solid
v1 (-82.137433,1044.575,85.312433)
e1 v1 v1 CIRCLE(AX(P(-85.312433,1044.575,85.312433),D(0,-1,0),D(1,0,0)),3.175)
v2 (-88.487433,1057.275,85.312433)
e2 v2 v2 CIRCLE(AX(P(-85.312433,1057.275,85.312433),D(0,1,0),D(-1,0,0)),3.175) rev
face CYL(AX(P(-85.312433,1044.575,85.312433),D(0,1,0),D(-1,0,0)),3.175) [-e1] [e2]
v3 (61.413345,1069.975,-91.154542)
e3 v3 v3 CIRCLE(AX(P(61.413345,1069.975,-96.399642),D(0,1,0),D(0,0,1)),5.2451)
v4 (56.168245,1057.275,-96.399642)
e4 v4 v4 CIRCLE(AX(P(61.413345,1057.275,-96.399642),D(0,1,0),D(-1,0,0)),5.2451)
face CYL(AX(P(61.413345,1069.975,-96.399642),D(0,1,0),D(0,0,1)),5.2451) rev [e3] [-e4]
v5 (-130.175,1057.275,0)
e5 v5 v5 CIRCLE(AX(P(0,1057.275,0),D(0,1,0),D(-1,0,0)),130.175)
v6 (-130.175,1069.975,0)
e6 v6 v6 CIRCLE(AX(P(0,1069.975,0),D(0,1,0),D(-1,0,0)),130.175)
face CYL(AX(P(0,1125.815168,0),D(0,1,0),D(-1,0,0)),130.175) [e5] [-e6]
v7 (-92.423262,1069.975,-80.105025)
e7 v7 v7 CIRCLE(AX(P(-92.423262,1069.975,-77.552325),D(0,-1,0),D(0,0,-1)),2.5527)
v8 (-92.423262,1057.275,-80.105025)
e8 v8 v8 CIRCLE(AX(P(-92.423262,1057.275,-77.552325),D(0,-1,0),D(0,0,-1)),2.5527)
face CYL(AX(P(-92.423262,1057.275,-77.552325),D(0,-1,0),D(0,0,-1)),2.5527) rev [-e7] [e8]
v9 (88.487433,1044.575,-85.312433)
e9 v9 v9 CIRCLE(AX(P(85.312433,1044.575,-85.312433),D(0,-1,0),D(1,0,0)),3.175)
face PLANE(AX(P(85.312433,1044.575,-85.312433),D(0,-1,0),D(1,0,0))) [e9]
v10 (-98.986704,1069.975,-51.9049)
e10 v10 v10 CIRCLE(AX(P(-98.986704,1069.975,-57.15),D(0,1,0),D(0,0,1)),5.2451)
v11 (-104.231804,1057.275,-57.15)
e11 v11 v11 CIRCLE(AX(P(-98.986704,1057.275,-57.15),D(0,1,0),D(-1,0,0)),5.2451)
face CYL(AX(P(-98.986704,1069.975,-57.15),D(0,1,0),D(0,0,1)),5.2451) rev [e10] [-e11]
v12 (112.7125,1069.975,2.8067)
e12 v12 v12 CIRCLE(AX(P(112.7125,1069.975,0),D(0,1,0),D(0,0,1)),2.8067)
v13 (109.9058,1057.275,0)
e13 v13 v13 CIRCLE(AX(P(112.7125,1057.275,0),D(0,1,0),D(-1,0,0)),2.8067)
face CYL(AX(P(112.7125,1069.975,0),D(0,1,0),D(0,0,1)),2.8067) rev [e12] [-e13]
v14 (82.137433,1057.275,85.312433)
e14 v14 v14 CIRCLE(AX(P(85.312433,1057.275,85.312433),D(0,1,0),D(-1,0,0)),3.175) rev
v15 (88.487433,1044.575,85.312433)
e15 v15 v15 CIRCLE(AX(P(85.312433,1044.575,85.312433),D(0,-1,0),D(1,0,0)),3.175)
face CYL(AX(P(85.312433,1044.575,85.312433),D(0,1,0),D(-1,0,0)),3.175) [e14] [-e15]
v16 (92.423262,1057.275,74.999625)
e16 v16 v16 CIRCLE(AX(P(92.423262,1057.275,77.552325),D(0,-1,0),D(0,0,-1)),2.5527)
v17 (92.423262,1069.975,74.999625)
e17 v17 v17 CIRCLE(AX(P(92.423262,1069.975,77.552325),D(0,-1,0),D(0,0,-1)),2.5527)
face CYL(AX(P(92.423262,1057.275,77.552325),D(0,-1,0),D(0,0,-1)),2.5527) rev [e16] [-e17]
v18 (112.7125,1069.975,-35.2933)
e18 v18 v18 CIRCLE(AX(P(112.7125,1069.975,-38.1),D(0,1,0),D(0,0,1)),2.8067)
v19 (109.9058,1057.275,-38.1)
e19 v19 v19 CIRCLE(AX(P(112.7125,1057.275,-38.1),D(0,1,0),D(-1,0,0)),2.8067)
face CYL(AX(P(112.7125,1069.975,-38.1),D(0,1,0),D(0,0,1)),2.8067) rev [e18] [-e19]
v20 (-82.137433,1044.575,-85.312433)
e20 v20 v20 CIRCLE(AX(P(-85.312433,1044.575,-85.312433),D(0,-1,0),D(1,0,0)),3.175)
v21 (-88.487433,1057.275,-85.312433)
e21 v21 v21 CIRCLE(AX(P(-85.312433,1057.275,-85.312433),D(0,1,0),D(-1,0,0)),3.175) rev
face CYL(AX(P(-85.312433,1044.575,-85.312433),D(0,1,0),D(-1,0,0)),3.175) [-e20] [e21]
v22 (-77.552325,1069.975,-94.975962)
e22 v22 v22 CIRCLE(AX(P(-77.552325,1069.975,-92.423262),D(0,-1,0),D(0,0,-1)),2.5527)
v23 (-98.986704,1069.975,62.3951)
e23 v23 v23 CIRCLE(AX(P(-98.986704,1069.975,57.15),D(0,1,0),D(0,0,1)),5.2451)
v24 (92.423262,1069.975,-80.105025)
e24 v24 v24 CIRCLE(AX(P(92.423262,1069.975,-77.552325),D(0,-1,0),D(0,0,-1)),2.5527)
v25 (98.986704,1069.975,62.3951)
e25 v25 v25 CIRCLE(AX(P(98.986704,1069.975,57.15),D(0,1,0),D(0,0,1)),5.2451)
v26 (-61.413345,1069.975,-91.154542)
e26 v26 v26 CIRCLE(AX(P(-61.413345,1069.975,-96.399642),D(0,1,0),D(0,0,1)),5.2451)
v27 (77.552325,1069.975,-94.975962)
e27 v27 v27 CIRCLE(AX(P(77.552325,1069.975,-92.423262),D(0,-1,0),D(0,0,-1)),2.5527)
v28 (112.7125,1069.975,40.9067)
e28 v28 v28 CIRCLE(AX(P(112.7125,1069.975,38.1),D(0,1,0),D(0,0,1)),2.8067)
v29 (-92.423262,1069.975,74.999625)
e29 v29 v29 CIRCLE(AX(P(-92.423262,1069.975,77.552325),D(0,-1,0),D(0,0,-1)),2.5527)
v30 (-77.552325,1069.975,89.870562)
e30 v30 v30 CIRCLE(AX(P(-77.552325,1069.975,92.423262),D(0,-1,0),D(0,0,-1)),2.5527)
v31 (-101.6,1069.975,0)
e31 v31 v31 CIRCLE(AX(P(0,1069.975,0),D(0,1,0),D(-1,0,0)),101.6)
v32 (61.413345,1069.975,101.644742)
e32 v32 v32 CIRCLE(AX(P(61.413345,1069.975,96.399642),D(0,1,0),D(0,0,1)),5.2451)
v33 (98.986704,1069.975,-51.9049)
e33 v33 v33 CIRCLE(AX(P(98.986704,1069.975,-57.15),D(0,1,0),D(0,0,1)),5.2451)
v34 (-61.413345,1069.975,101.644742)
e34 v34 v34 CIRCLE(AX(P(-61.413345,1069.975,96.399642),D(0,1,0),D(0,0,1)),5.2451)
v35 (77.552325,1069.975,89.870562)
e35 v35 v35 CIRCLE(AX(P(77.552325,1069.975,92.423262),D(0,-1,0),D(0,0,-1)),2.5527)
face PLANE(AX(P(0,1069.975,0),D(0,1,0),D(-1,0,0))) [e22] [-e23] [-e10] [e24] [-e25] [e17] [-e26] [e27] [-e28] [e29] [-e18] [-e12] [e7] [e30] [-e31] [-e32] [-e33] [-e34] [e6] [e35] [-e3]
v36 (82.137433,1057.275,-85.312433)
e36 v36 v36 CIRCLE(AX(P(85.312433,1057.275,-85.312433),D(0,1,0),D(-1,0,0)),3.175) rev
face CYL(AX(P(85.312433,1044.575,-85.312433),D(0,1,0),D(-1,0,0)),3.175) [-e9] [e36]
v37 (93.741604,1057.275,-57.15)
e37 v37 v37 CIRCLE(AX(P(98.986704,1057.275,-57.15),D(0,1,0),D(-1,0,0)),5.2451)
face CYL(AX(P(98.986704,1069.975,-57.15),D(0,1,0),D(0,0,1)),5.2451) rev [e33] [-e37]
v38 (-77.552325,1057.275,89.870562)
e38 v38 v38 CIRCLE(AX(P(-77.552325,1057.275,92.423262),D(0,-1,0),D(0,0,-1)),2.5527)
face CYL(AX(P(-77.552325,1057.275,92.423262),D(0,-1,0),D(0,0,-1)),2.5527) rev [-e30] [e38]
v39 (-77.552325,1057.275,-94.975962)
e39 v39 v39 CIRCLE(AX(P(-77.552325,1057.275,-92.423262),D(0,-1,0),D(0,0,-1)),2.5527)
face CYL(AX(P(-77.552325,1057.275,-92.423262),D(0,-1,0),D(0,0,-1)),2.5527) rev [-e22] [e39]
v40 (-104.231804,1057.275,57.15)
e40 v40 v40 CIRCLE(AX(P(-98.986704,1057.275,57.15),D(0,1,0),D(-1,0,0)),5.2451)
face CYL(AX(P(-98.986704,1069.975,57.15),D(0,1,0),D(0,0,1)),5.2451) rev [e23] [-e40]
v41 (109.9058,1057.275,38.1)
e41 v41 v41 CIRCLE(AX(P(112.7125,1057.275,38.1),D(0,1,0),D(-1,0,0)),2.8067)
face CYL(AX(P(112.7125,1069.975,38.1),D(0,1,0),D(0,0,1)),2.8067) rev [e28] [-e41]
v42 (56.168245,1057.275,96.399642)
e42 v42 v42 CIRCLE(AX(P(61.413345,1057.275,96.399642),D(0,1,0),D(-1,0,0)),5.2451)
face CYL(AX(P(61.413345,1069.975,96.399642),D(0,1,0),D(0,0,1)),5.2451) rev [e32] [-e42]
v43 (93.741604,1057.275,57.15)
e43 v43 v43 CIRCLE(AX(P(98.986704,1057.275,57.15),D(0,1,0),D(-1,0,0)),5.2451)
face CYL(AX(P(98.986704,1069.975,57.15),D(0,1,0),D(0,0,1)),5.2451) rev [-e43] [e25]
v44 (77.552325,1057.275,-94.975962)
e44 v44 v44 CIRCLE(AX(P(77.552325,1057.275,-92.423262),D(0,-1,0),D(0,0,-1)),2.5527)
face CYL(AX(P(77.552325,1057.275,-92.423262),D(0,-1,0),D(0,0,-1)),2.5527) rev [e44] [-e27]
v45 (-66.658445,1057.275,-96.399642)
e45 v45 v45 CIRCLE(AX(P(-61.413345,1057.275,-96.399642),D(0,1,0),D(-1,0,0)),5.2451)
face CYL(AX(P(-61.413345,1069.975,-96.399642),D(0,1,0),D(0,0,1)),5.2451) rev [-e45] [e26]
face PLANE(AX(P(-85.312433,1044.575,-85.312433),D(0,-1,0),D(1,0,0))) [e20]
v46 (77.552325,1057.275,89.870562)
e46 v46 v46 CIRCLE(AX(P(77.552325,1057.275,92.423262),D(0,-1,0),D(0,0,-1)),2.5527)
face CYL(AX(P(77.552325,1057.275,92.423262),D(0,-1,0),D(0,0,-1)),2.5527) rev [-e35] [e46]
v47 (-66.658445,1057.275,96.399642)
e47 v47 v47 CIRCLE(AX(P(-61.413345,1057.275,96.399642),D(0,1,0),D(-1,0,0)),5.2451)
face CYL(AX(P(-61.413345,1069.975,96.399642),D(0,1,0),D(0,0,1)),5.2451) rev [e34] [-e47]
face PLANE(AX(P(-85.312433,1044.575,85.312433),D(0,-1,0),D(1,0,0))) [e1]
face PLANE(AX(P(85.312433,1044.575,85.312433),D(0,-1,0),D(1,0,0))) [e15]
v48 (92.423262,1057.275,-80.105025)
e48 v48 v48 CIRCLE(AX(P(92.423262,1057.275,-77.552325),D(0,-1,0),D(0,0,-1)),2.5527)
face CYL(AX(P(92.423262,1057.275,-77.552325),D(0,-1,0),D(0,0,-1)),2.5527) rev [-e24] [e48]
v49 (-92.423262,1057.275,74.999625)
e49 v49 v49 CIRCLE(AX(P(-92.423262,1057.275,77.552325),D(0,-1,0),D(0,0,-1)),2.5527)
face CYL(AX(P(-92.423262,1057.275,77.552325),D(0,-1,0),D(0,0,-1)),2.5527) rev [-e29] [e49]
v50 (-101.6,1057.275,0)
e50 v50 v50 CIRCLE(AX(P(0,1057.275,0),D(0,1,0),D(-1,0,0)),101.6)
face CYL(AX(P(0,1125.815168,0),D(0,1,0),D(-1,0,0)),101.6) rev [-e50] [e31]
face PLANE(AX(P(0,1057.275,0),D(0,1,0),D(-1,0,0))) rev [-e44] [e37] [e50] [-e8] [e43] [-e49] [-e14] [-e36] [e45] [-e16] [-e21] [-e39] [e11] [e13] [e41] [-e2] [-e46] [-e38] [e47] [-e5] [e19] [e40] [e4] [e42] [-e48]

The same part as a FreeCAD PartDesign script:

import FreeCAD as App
import Part
import Sketcher
from FreeCAD import Vector
Q = App.Units.Quantity

doc = App.newDocument("Part")
body = doc.addObject("PartDesign::Body", "Body")

# Sketch on XY plane
sketch1 = body.newObject("Sketcher::SketchObject", "Sketch")
sketch1.AttachmentSupport = (doc.getObject("XY_Plane"), [""])
sketch1.MapMode = "FlatFace"
sketch1.addGeometry([
    Part.LineSegment(Vector(102, 1070, 0), Vector(102, 1057, 0)),
    Part.LineSegment(Vector(102, 1057, 0), Vector(130, 1057, 0)),
    Part.LineSegment(Vector(130, 1057, 0), Vector(130, 1070, 0)),
    Part.LineSegment(Vector(130, 1070, 0), Vector(102, 1070, 0)),
], False)
sketch1.addConstraint([
    Sketcher.Constraint("Coincident", 0, 2, 1, 1),
    Sketcher.Constraint("Coincident", 1, 2, 2, 1),
    Sketcher.Constraint("Coincident", 2, 2, 3, 1),
    Sketcher.Constraint("Coincident", 3, 2, 0, 1),
    Sketcher.Constraint("Vertical", 0),
    Sketcher.Constraint("Horizontal", 1),
    Sketcher.Constraint("Vertical", 2),
    Sketcher.Constraint("Horizontal", 3),
    Sketcher.Constraint("DistanceY", 0, 2, 0, 1, Q("0.5 in")),
    Sketcher.Constraint("DistanceX", -1, 1, 0, 2, Q("4 in")),
    Sketcher.Constraint("DistanceX", 1, 1, 1, 2, Q("1.125 in")),
    Sketcher.Constraint("DistanceY", -1, 1, 0, 2, Q("41.625 in")),
])
revolution = body.newObject("PartDesign::Revolution", "Revolution")
revolution.Profile = sketch1
revolution.ReferenceAxis = (sketch1, ["V_Axis"])
revolution.Angle = 360

# Sketch on XZ plane
sketch2 = body.newObject("Sketcher::SketchObject", "Sketch001")
sketch2.AttachmentSupport = (doc.getObject("XZ_Plane"), [""])
sketch2.MapMode = "FlatFace"
sketch2.AttachmentOffset = App.Placement(Vector(0, 0, -41.625 * 25.4), App.Rotation())
sketch2.addGeometry([
    Part.Circle(Vector(-85.3, 85.3, 0), Vector(0, 0, 1), 3.2),
    Part.Circle(Vector(85.3, 85.3, 0), Vector(0, 0, 1), 3.2),
    Part.Circle(Vector(85.3, -85.3, 0), Vector(0, 0, 1), 3.2),
    Part.Circle(Vector(-85.3, -85.3, 0), Vector(0, 0, 1), 3.2),
], False)
sketch2.addConstraint([
    Sketcher.Constraint("Equal", 0, 1),
    Sketcher.Constraint("Equal", 1, 2),
    Sketcher.Constraint("Equal", 2, 3),
    Sketcher.Constraint("Symmetric", 0, 3, 2, 3, -1, 1),
    Sketcher.Constraint("Symmetric", 1, 3, 3, 3, -1, 1),
    Sketcher.Constraint("Symmetric", 0, 3, 1, 3, -2),
    Sketcher.Constraint("Diameter", 0, Q("0.25 in")),
    Sketcher.Constraint("DistanceX", 0, 3, -1, 1, Q("85.312433 mm")),
    Sketcher.Constraint("DistanceY", -1, 1, 0, 3, Q("85.312433 mm")),
])
pad1 = body.newObject("PartDesign::Pad", "Pad")
pad1.Profile = sketch2
pad1.Length = Q("0.5 in")

# Sketch on XZ plane
sketch3 = body.newObject("Sketcher::SketchObject", "Sketch002")
sketch3.AttachmentSupport = (doc.getObject("XZ_Plane"), [""])
sketch3.MapMode = "FlatFace"
sketch3.AttachmentOffset = App.Placement(Vector(0, 0, -41.625 * 25.4), App.Rotation())
sketch3.addGeometry([
    Part.Circle(Vector(-77.6, -92.4, 0), Vector(0, 0, 1), 2.6),
    Part.Circle(Vector(-92.4, -77.6, 0), Vector(0, 0, 1), 2.6),
], False)
sketch3.addConstraint([
    Sketcher.Constraint("Equal", 0, 1),
    Sketcher.Constraint("Diameter", 0, Q("0.201 in")),
    Sketcher.Constraint("DistanceX", 0, 3, -1, 1, Q("77.552325 mm")),
    Sketcher.Constraint("DistanceY", 0, 3, -1, 1, Q("92.423262 mm")),
    Sketcher.Constraint("DistanceX", 1, 3, -1, 1, Q("92.423262 mm")),
    Sketcher.Constraint("DistanceY", 1, 3, -1, 1, Q("77.552325 mm")),
])
doc.recompute()
hole = body.newObject("PartDesign::Hole", "Hole")
hole.Profile = sketch3
hole.ThreadType = "None"
hole.Diameter = Q("0.201 in")
hole.DepthType = "ThroughAll"
doc.recompute()

polarpattern = body.newObject("PartDesign::PolarPattern", "PolarPattern")
polarpattern.Originals = [hole]
polarpattern.Axis = (doc.getObject("Y_Axis"), [""])
polarpattern.Angle = 360
polarpattern.Occurrences = 4
body.Tip = polarpattern

# Sketch on XZ plane
sketch4 = body.newObject("Sketcher::SketchObject", "Sketch003")
sketch4.AttachmentSupport = (doc.getObject("XZ_Plane"), [""])
sketch4.MapMode = "FlatFace"
sketch4.AttachmentOffset = App.Placement(Vector(0, 0, -42.125 * 25.4), App.Rotation())
sketch4.addGeometry([
    Part.Circle(Vector(112.7, -38.1, 0), Vector(0, 0, 1), 2.8),
    Part.Circle(Vector(112.7, 0, 0), Vector(0, 0, 1), 2.8),
    Part.Circle(Vector(112.7, 38.1, 0), Vector(0, 0, 1), 2.8),
], False)
sketch4.addConstraint([
    Sketcher.Constraint("Equal", 0, 1),
    Sketcher.Constraint("Equal", 1, 2),
    Sketcher.Constraint("Symmetric", 0, 3, 2, 3, -1),
    Sketcher.Constraint("PointOnObject", 1, 3, -1),
    Sketcher.Constraint("Vertical", 0, 3, 1, 3),
    Sketcher.Constraint("Diameter", 0, Q("0.221 in")),
    Sketcher.Constraint("DistanceY", 0, 3, 2, 3, Q("3 in")),
    Sketcher.Constraint("DistanceX", -1, 1, 0, 3, Q("4.4375 in")),
])
doc.recompute()
hole2 = body.newObject("PartDesign::Hole", "Hole001")
hole2.Profile = sketch4
hole2.ThreadType = "None"
hole2.Diameter = Q("0.221 in")
hole2.DepthType = "ThroughAll"
hole2.Reversed = True

# Sketch on XZ plane
sketch5 = body.newObject("Sketcher::SketchObject", "Sketch004")
sketch5.AttachmentSupport = (doc.getObject("XZ_Plane"), [""])
sketch5.MapMode = "FlatFace"
sketch5.AttachmentOffset = App.Placement(Vector(0, 0, -42.125 * 25.4), App.Rotation())
sketch5.addGeometry([
    Part.Circle(Vector(-99, 57, 0), Vector(0, 0, 1), 5),  # 0
    Part.Circle(Vector(99, 57, 0), Vector(0, 0, 1), 5),  # 1
    Part.Circle(Vector(99, -57, 0), Vector(0, 0, 1), 5),  # 2
    Part.Circle(Vector(-99, -57, 0), Vector(0, 0, 1), 5),  # 3
    Part.Circle(Vector(-61, -96, 0), Vector(0, 0, 1), 5),  # 4
    Part.Circle(Vector(61, -96, 0), Vector(0, 0, 1), 5),  # 5
    Part.Circle(Vector(61, 96, 0), Vector(0, 0, 1), 5),  # 6
    Part.Circle(Vector(-61, 96, 0), Vector(0, 0, 1), 5),  # 7
], False)
sketch5.addConstraint([
    Sketcher.Constraint("Equal", 0, 1),
    Sketcher.Constraint("Equal", 1, 2),
    Sketcher.Constraint("Equal", 2, 3),
    Sketcher.Constraint("Equal", 3, 4),
    Sketcher.Constraint("Equal", 4, 5),
    Sketcher.Constraint("Equal", 5, 6),
    Sketcher.Constraint("Equal", 6, 7),
    Sketcher.Constraint("Symmetric", 0, 3, 2, 3, -1, 1),
    Sketcher.Constraint("Symmetric", 1, 3, 3, 3, -1, 1),
    Sketcher.Constraint("Symmetric", 4, 3, 6, 3, -1, 1),
    Sketcher.Constraint("Symmetric", 5, 3, 7, 3, -1, 1),
    Sketcher.Constraint("Symmetric", 0, 3, 1, 3, -2),
    Sketcher.Constraint("Symmetric", 4, 3, 5, 3, -2),
    Sketcher.Constraint("Diameter", 0, Q("0.413 in")),
    Sketcher.Constraint("DistanceY", 2, 3, 1, 3, Q("4.5 in")),
    Sketcher.Constraint("DistanceX", 3, 3, 4, 3, Q("37.573358 mm")),
    Sketcher.Constraint("DistanceX", 4, 3, 2, 3, Q("160.400049 mm")),
    Sketcher.Constraint("DistanceY", 4, 3, -1, 1, Q("96.399642 mm")),
])
doc.recompute()
hole3 = body.newObject("PartDesign::Hole", "Hole002")
hole3.Profile = sketch5
hole3.ThreadType = "None"
hole3.Diameter = Q("0.413 in")
hole3.DepthType = "ThroughAll"
hole3.Reversed = True

doc.recompute()
